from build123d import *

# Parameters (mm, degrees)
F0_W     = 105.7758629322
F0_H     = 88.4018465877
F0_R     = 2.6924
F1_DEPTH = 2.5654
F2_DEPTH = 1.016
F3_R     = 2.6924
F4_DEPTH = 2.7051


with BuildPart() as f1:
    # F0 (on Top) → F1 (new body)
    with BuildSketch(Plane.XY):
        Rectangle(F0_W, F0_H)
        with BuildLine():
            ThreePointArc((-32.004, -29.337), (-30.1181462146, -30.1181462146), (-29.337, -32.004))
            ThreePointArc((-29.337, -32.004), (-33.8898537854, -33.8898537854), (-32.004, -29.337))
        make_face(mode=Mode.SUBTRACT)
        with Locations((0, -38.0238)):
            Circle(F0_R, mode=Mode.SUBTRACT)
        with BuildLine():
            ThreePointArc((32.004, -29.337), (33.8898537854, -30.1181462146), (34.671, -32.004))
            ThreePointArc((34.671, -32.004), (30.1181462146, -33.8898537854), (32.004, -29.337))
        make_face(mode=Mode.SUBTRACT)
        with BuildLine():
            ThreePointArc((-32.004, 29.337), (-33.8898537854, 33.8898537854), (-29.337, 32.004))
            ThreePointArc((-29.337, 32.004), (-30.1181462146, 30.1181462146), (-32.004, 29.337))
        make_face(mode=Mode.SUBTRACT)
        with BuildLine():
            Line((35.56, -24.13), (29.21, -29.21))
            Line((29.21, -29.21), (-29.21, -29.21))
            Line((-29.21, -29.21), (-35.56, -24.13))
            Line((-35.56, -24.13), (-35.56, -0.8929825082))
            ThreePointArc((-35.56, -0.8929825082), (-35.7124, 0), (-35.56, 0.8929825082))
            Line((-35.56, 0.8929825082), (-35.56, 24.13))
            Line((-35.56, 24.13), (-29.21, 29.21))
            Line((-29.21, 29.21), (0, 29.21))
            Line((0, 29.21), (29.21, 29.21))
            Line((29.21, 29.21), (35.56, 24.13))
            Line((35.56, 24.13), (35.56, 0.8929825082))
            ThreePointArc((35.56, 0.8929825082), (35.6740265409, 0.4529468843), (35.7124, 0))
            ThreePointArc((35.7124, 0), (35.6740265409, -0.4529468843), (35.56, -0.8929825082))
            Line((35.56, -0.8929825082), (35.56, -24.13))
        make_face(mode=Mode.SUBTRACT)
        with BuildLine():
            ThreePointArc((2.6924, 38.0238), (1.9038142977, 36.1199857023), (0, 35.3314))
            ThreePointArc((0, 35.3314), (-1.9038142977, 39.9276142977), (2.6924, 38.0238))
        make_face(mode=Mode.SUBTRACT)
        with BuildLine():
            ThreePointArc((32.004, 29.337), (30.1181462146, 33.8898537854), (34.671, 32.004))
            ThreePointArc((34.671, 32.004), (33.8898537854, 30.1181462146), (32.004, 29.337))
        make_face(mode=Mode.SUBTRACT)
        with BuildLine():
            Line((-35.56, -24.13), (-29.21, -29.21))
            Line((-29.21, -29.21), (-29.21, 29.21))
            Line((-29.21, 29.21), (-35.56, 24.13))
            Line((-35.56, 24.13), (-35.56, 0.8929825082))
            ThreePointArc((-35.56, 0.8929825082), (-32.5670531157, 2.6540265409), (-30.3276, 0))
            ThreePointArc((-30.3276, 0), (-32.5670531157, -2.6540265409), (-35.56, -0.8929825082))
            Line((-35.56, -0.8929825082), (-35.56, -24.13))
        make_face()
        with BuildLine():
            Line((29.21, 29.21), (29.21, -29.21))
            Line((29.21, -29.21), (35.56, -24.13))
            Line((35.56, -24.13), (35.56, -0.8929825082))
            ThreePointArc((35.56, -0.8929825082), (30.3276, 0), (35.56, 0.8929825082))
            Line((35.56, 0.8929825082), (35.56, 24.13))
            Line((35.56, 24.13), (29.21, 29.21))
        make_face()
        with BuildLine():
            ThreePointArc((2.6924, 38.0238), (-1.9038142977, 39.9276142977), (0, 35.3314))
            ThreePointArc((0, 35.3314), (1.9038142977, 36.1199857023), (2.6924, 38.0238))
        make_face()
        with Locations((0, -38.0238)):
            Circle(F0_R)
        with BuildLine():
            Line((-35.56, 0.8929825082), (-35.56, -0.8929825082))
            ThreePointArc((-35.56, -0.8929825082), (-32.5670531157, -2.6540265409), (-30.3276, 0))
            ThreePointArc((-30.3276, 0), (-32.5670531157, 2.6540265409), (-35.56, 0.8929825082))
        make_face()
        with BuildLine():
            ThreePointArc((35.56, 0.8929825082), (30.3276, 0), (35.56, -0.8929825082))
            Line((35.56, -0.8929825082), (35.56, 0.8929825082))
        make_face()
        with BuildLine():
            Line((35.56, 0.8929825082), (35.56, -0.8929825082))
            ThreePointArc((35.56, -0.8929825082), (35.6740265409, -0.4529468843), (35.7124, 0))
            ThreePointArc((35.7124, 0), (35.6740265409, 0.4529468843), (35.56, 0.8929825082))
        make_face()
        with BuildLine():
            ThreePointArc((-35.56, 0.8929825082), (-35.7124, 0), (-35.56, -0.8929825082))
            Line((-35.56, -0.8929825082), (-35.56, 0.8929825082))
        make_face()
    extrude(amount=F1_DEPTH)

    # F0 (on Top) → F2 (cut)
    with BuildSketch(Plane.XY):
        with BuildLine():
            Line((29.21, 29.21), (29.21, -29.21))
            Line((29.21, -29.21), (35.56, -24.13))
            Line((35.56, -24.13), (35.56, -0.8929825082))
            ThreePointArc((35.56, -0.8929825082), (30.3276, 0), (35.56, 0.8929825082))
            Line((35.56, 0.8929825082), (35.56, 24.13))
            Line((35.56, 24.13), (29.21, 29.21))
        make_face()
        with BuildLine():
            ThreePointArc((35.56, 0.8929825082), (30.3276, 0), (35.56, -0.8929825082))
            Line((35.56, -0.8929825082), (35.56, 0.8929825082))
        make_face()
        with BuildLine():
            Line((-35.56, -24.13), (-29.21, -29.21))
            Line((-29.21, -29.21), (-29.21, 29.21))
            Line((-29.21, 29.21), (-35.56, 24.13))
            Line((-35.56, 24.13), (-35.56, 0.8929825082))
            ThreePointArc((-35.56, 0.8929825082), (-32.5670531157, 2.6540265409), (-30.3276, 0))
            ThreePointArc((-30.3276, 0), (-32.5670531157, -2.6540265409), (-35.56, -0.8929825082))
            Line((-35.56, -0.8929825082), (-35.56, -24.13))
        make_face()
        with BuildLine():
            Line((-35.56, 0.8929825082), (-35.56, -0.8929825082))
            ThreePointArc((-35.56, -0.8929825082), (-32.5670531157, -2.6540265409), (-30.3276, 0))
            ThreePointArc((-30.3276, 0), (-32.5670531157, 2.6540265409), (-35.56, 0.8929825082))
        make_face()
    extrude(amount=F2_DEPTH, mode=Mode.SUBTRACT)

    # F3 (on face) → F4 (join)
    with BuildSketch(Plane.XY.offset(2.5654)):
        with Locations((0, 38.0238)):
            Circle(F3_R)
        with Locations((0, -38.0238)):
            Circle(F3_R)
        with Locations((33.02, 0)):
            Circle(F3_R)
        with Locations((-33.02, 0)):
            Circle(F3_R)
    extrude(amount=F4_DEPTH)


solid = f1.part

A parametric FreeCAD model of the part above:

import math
import FreeCAD as App
import Part
import Sketcher

V = App.Vector
Q = App.Units.Quantity

doc = App.newDocument("Part")
body = doc.addObject("PartDesign::Body", "Body")

sketch1 = body.newObject("Sketcher::SketchObject", "Sketch")
sketch1.AttachmentSupport = (doc.getObject("XY_Plane"), [""])
sketch1.MapMode = "FlatFace"
sketch1.addGeometry(Part.LineSegment(V(-52.9, 44.2, 0), V(-52.9, -44.2, 0)), False)
sketch1.addGeometry(Part.LineSegment(V(-52.9, -44.2, 0), V(52.9, -44.2, 0)), False)
sketch1.addGeometry(Part.LineSegment(V(52.9, -44.2, 0), V(52.9, 44.2, 0)), False)
sketch1.addGeometry(Part.LineSegment(V(52.9, 44.2, 0), V(-52.9, 44.2, 0)), False)
sketch1.addGeometry(Part.ArcOfCircle(Part.Circle(V(-32, -32, 0), V(0, 0, 1), 2.7), math.radians(90), math.radians(360)), False)
sketch1.addGeometry(Part.ArcOfCircle(Part.Circle(V(-32, -32, 0), V(0, 0, 1), 2.7), math.radians(0), math.radians(90)), False)
sketch1.addGeometry(Part.ArcOfCircle(Part.Circle(V(32, -32, 0), V(0, 0, 1), 2.7), math.radians(90), math.radians(360)), False)
sketch1.addGeometry(Part.ArcOfCircle(Part.Circle(V(32, -32, 0), V(0, 0, 1), 2.7), math.radians(0), math.radians(90)), False)
sketch1.addGeometry(Part.LineSegment(V(29.2, -29.2, 0), V(-29.2, -29.2, 0)), False)
sketch1.addGeometry(Part.LineSegment(V(-29.2, -29.2, 0), V(-29.2, 29.2, 0)), False)
sketch1.addGeometry(Part.LineSegment(V(-29.2, 29.2, 0), V(29.2, 29.2, 0)), False)
sketch1.addGeometry(Part.LineSegment(V(29.2, 29.2, 0), V(29.2, -29.2, 0)), False)
sketch1.addGeometry(Part.ArcOfCircle(Part.Circle(V(-32, 32, 0), V(0, 0, 1), 2.7), math.radians(-90), math.radians(0)), False)
sketch1.addGeometry(Part.ArcOfCircle(Part.Circle(V(-32, 32, 0), V(0, 0, 1), 2.7), math.radians(0), math.radians(270)), False)
sketch1.addGeometry(Part.ArcOfCircle(Part.Circle(V(32, 32, 0), V(0, 0, 1), 2.7), math.radians(-90), math.radians(0)), False)
sketch1.addGeometry(Part.ArcOfCircle(Part.Circle(V(32, 32, 0), V(0, 0, 1), 2.7), math.radians(0), math.radians(270)), False)
sketch1.addConstraint(Sketcher.Constraint("Coincident", 0, 2, 1, 1))
sketch1.addConstraint(Sketcher.Constraint("Coincident", 1, 2, 2, 1))
sketch1.addConstraint(Sketcher.Constraint("Coincident", 2, 2, 3, 1))
sketch1.addConstraint(Sketcher.Constraint("Coincident", 3, 2, 0, 1))
sketch1.addConstraint(Sketcher.Constraint("Tangent", 4, 1, 5, 2))
sketch1.addConstraint(Sketcher.Constraint("Coincident", 5, 1, 4, 2))
sketch1.addConstraint(Sketcher.Constraint("Tangent", 6, 1, 7, 2))
sketch1.addConstraint(Sketcher.Constraint("Coincident", 7, 1, 6, 2))
sketch1.addConstraint(Sketcher.Constraint("Coincident", 8, 2, 9, 1))
sketch1.addConstraint(Sketcher.Constraint("Coincident", 9, 2, 10, 1))
sketch1.addConstraint(Sketcher.Constraint("Coincident", 10, 2, 11, 1))
sketch1.addConstraint(Sketcher.Constraint("Coincident", 11, 2, 8, 1))
sketch1.addConstraint(Sketcher.Constraint("Tangent", 12, 1, 13, 2))
sketch1.addConstraint(Sketcher.Constraint("Coincident", 13, 1, 12, 2))
sketch1.addConstraint(Sketcher.Constraint("Tangent", 14, 1, 15, 2))
sketch1.addConstraint(Sketcher.Constraint("Coincident", 15, 1, 14, 2))
sketch1.addConstraint(Sketcher.Constraint("Vertical", 0))
sketch1.addConstraint(Sketcher.Constraint("Horizontal", 1))
sketch1.addConstraint(Sketcher.Constraint("Vertical", 2))
sketch1.addConstraint(Sketcher.Constraint("Horizontal", 3))
sketch1.addConstraint(Sketcher.Constraint("Horizontal", 8))
sketch1.addConstraint(Sketcher.Constraint("Vertical", 9))
sketch1.addConstraint(Sketcher.Constraint("Horizontal", 10))
sketch1.addConstraint(Sketcher.Constraint("Vertical", 11))
sketch1.addConstraint(Sketcher.Constraint("Equal", 5, 6))
sketch1.addConstraint(Sketcher.Constraint("Equal", 7, 12))
sketch1.addConstraint(Sketcher.Constraint("Equal", 13, 14))
sketch1.addConstraint(Sketcher.Constraint("Symmetric", 6, 3, 12, 3, -1, 1))
sketch1.addConstraint(Sketcher.Constraint("Symmetric", 4, 3, 14, 3, -1, 1))
sketch1.addConstraint(Sketcher.Constraint("Symmetric", 0, 2, 2, 2, -1, 1))
sketch1.addConstraint(Sketcher.Constraint("Symmetric", 8, 2, 10, 2, -1, 1))
sketch1.addConstraint(Sketcher.Constraint("Symmetric", 4, 3, 6, 3, -2))
sketch1.addConstraint(Sketcher.Constraint("Horizontal", 7, 3, 5, 1))
sketch1.addConstraint(Sketcher.Constraint("Horizontal", 5, 1, 7, 1))
sketch1.addConstraint(Sketcher.Constraint("Horizontal", 15, 3, 13, 1))
sketch1.addConstraint(Sketcher.Constraint("Horizontal", 13, 1, 15, 1))
sketch1.addConstraint(Sketcher.Constraint("Vertical", 13, 3, 4, 1))
sketch1.addConstraint(Sketcher.Constraint("Vertical", 15, 3, 6, 1))
sketch1.addConstraint(Sketcher.Constraint("Vertical", 4, 1, 12, 1))
sketch1.addConstraint(Sketcher.Constraint("Vertical", 6, 1, 14, 1))
sketch1.addConstraint(Sketcher.Constraint("Equal", 10, 9))
sketch1.addConstraint(Sketcher.Constraint("DistanceX", 8, 2, 8, 1, Q("2.3 in")))
sketch1.addConstraint(Sketcher.Constraint("Radius", 4, Q("0.105 in")))
sketch1.addConstraint(Sketcher.Constraint("DistanceX", 4, 3, -1, 1, Q("1.26 in")))
sketch1.addConstraint(Sketcher.Constraint("DistanceY", 4, 3, -1, 1, Q("1.26 in")))
sketch1.addConstraint(Sketcher.Constraint("DistanceX", 1, 1, 1, 2, 105.775863))
sketch1.addConstraint(Sketcher.Constraint("DistanceY", 0, 2, 0, 1, 88.401847))
pad1 = body.newObject("PartDesign::Pad", "Pad")
pad1.Profile = sketch1
pad1.Length = Q("0.101 in")

sketch2 = body.newObject("Sketcher::SketchObject", "Sketch001")
sketch2.AttachmentSupport = (doc.getObject("XY_Plane"), [""])
sketch2.MapMode = "FlatFace"
sketch2.addGeometry(Part.LineSegment(V(29, 29, 0), V(29, -29, 0)), False)
sketch2.addGeometry(Part.LineSegment(V(29, -29, 0), V(36, -24, 0)), False)
sketch2.addGeometry(Part.LineSegment(V(36, -24, 0), V(36, 24, 0)), False)
sketch2.addGeometry(Part.LineSegment(V(36, 24, 0), V(29, 29, 0)), False)
sketch2.addGeometry(Part.LineSegment(V(-36, -24, 0), V(-29, -29, 0)), False)
sketch2.addGeometry(Part.LineSegment(V(-29, -29, 0), V(-29, 29, 0)), False)
sketch2.addGeometry(Part.LineSegment(V(-29, 29, 0), V(-36, 24, 0)), False)
sketch2.addGeometry(Part.LineSegment(V(-36, 24, 0), V(-36, -24, 0)), False)
sketch2.addConstraint(Sketcher.Constraint("Coincident", 0, 2, 1, 1))
sketch2.addConstraint(Sketcher.Constraint("Coincident", 1, 2, 2, 1))
sketch2.addConstraint(Sketcher.Constraint("Coincident", 2, 2, 3, 1))
sketch2.addConstraint(Sketcher.Constraint("Coincident", 3, 2, 0, 1))
sketch2.addConstraint(Sketcher.Constraint("Coincident", 4, 2, 5, 1))
sketch2.addConstraint(Sketcher.Constraint("Coincident", 5, 2, 6, 1))
sketch2.addConstraint(Sketcher.Constraint("Coincident", 6, 2, 7, 1))
sketch2.addConstraint(Sketcher.Constraint("Coincident", 7, 2, 4, 1))
sketch2.addConstraint(Sketcher.Constraint("Vertical", 0))
sketch2.addConstraint(Sketcher.Constraint("Vertical", 2))
sketch2.addConstraint(Sketcher.Constraint("Vertical", 5))
sketch2.addConstraint(Sketcher.Constraint("Vertical", 7))
sketch2.addConstraint(Sketcher.Constraint("Symmetric", 3, 2, 4, 2, -1, 1))
sketch2.addConstraint(Sketcher.Constraint("Symmetric", 1, 2, 6, 2, -1, 1))
sketch2.addConstraint(Sketcher.Constraint("Parallel", 3, 4))
sketch2.addConstraint(Sketcher.Constraint("Parallel", 1, 6))
sketch2.addConstraint(Sketcher.Constraint("Horizontal", 0, 2, 4, 2))
sketch2.addConstraint(Sketcher.Constraint("Horizontal", 2, 2, 6, 2))
sketch2.addConstraint(Sketcher.Constraint("DistanceY", 0, 2, 0, 1, Q("2.3 in")))
sketch2.addConstraint(Sketcher.Constraint("DistanceY", 2, 1, 2, 2, Q("1.9 in")))
sketch2.addConstraint(Sketcher.Constraint("DistanceX", -1, 1, 1, 2, Q("1.4 in")))
sketch2.addConstraint(Sketcher.Constraint("DistanceX", 4, 2, 0, 2, Q("2.3 in")))
pocket1 = body.newObject("PartDesign::Pocket", "Pocket")
pocket1.Profile = sketch2
pocket1.Length = Q("0.04 in")
pocket1.Reversed = True

sketch3 = body.newObject("Sketcher::SketchObject", "Sketch002")
sketch3.AttachmentSupport = (doc.getObject("XY_Plane"), [""])
sketch3.MapMode = "FlatFace"
sketch3.AttachmentOffset = App.Placement(V(0, 0, 0.101 * 25.4), App.Rotation())
sketch3.addGeometry(Part.Circle(V(0, 38, 0), V(0, 0, 1), 2.7), False)
sketch3.addGeometry(Part.Circle(V(0, -38, 0), V(0, 0, 1), 2.7), False)
sketch3.addGeometry(Part.Circle(V(33, 0, 0), V(0, 0, 1), 2.7), False)
sketch3.addGeometry(Part.Circle(V(-33, 0, 0), V(0, 0, 1), 2.7), False)
sketch3.addConstraint(Sketcher.Constraint("Equal", 0, 1))
sketch3.addConstraint(Sketcher.Constraint("Equal", 1, 2))
sketch3.addConstraint(Sketcher.Constraint("Equal", 2, 3))
sketch3.addConstraint(Sketcher.Constraint("Symmetric", 0, 3, 1, 3, -1, 1))
sketch3.addConstraint(Sketcher.Constraint("Symmetric", 2, 3, 3, 3, -1, 1))
sketch3.addConstraint(Sketcher.Constraint("PointOnObject", 0, 3, -2))
sketch3.addConstraint(Sketcher.Constraint("PointOnObject", 2, 3, -1))
sketch3.addConstraint(Sketcher.Constraint("Diameter", 0, Q("0.212 in")))
sketch3.addConstraint(Sketcher.Constraint("DistanceX", -1, 1, 2, 3, Q("1.3 in")))
sketch3.addConstraint(Sketcher.Constraint("DistanceY", -1, 1, 0, 3, Q("1.497 in")))
pad2 = body.newObject("PartDesign::Pad", "Pad001")
pad2.Profile = sketch3
pad2.Length = Q("0.1065 in")

doc.recompute()
